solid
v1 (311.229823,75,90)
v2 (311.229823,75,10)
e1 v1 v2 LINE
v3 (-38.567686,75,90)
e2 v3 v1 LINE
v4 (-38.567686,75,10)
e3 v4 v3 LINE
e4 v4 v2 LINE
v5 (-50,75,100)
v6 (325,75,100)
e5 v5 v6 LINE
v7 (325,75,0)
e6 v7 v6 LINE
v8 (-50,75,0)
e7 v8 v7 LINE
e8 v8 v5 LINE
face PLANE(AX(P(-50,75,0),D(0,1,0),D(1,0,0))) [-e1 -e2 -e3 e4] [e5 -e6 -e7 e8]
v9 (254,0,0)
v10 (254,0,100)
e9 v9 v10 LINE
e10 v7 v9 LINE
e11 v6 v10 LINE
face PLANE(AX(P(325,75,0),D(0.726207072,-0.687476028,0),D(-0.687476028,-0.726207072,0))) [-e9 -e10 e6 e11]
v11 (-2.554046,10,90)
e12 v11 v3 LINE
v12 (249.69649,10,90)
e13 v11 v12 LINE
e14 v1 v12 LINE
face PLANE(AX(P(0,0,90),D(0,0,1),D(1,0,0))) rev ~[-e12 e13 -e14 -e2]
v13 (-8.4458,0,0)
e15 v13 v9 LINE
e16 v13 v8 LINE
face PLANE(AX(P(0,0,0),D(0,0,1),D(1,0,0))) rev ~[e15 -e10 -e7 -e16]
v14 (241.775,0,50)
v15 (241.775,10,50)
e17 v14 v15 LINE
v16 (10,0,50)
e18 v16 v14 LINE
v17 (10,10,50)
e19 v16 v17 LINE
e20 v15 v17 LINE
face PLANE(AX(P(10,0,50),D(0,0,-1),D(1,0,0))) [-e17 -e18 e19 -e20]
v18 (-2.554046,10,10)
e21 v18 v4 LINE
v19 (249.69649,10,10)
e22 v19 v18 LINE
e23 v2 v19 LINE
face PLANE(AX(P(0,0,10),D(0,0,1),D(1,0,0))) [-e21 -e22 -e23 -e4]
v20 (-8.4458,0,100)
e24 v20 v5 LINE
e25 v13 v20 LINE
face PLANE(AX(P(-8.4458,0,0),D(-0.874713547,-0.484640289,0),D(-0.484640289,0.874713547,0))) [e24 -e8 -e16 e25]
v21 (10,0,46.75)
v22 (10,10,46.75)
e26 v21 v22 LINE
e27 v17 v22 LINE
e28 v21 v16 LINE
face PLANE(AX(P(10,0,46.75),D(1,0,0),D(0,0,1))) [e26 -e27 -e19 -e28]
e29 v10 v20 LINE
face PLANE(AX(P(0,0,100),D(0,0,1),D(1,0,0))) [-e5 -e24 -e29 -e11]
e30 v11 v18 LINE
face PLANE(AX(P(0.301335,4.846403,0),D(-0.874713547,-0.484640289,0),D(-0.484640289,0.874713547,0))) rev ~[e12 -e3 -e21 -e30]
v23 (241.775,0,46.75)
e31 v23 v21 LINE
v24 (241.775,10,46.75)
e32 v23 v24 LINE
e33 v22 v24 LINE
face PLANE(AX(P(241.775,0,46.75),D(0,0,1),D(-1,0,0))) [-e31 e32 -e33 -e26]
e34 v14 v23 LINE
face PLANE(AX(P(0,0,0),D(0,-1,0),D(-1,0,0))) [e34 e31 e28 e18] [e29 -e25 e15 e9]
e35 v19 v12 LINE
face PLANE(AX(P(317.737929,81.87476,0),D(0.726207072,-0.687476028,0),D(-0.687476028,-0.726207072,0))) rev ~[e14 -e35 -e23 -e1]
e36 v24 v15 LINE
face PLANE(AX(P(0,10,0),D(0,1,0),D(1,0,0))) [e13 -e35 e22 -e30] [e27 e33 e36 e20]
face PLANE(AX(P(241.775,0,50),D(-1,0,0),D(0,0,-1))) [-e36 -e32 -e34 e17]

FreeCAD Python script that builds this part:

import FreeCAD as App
import Part
import Sketcher
from FreeCAD import Vector
Q = App.Units.Quantity


def faces_at(feature, points):
    """Names of the faces that lie closest to the given points."""
    faces = feature.Shape.Faces
    near = lambda p: min(range(len(faces)), key=lambda i: faces[i].distToShape(Part.Vertex(*p))[0])
    return sorted({f"Face{near(p) + 1}" for p in points})

doc = App.newDocument("Part")
body = doc.addObject("PartDesign::Body", "Body")

# Sketch on XY plane
sketch1 = body.newObject("Sketcher::SketchObject", "Sketch")
sketch1.AttachmentSupport = (doc.getObject("XY_Plane"), [""])
sketch1.MapMode = "FlatFace"
sketch1.addGeometry([
    Part.LineSegment(Vector(-8, 0, 0), Vector(254, 0, 0)),
    Part.LineSegment(Vector(254, 0, 0), Vector(325, 75, 0)),
    Part.LineSegment(Vector(325, 75, 0), Vector(-50, 75, 0)),
    Part.LineSegment(Vector(-50, 75, 0), Vector(-8, 0, 0)),
], False)
sketch1.addConstraint([
    Sketcher.Constraint("Coincident", 0, 2, 1, 1),
    Sketcher.Constraint("Coincident", 1, 2, 2, 1),
    Sketcher.Constraint("Coincident", 2, 2, 3, 1),
    Sketcher.Constraint("Coincident", 3, 2, 0, 1),
    Sketcher.Constraint("Horizontal", 0),
    Sketcher.Constraint("Horizontal", 2),
    Sketcher.Constraint("PointOnObject", 0, 2, -1),
    Sketcher.Constraint("Angle", 1, Q("46.5694 deg")),
    Sketcher.Constraint("Angle", 3, Q("-61.011 deg")),
    Sketcher.Constraint("DistanceX", 0, 1, 0, 2, Q("10.3325 in")),
    Sketcher.Constraint("DistanceX", -1, 1, 0, 2, Q("10 in")),
    Sketcher.Constraint("DistanceX", 2, 2, 2, 1, 375.0),
])
pad1 = body.newObject("PartDesign::Pad", "Pad")
pad1.Profile = sketch1
pad1.Length = Q("3.9370079 in")
doc.recompute()

thickness = body.newObject("PartDesign::Thickness", "Thickness")
thickness.Base = (pad1, faces_at(pad1, [(75, 75, 33.333)]))
thickness.Value = Q("0.3937008 in")
thickness.Reversed = True
thickness.Join = "Intersection"

# Sketch on XZ plane
sketch2 = body.newObject("Sketcher::SketchObject", "Sketch001")
sketch2.AttachmentSupport = (doc.getObject("XZ_Plane"), [""])
sketch2.MapMode = "FlatFace"
sketch2.addGeometry([
    Part.LineSegment(Vector(10, 46.8, 0), Vector(10, 50, 0)),
    Part.LineSegment(Vector(10, 50, 0), Vector(241.8, 50, 0)),
    Part.LineSegment(Vector(241.8, 50, 0), Vector(241.8, 46.8, 0)),
    Part.LineSegment(Vector(241.8, 46.8, 0), Vector(10, 46.8, 0)),
], False)
sketch2.addConstraint([
    Sketcher.Constraint("Coincident", 0, 2, 1, 1),
    Sketcher.Constraint("Coincident", 1, 2, 2, 1),
    Sketcher.Constraint("Coincident", 2, 2, 3, 1),
    Sketcher.Constraint("Coincident", 3, 2, 0, 1),
    Sketcher.Constraint("Vertical", 0),
    Sketcher.Constraint("Horizontal", 1),
    Sketcher.Constraint("Vertical", 2),
    Sketcher.Constraint("Horizontal", 3),
    Sketcher.Constraint("DistanceX", 1, 1, 1, 2, Q("9.125 in")),
    Sketcher.Constraint("DistanceY", 0, 1, 0, 2, 3.25),
    Sketcher.Constraint("DistanceY", -1, 1, 0, 2, Q("1.9685 in")),
    Sketcher.Constraint("DistanceX", -1, 1, 0, 2, Q("0.3937 in")),
])
pocket1 = body.newObject("PartDesign::Pocket", "Pocket")
pocket1.Profile = sketch2
pocket1.Length = Q("1.1811024 in")

doc.recompute()
